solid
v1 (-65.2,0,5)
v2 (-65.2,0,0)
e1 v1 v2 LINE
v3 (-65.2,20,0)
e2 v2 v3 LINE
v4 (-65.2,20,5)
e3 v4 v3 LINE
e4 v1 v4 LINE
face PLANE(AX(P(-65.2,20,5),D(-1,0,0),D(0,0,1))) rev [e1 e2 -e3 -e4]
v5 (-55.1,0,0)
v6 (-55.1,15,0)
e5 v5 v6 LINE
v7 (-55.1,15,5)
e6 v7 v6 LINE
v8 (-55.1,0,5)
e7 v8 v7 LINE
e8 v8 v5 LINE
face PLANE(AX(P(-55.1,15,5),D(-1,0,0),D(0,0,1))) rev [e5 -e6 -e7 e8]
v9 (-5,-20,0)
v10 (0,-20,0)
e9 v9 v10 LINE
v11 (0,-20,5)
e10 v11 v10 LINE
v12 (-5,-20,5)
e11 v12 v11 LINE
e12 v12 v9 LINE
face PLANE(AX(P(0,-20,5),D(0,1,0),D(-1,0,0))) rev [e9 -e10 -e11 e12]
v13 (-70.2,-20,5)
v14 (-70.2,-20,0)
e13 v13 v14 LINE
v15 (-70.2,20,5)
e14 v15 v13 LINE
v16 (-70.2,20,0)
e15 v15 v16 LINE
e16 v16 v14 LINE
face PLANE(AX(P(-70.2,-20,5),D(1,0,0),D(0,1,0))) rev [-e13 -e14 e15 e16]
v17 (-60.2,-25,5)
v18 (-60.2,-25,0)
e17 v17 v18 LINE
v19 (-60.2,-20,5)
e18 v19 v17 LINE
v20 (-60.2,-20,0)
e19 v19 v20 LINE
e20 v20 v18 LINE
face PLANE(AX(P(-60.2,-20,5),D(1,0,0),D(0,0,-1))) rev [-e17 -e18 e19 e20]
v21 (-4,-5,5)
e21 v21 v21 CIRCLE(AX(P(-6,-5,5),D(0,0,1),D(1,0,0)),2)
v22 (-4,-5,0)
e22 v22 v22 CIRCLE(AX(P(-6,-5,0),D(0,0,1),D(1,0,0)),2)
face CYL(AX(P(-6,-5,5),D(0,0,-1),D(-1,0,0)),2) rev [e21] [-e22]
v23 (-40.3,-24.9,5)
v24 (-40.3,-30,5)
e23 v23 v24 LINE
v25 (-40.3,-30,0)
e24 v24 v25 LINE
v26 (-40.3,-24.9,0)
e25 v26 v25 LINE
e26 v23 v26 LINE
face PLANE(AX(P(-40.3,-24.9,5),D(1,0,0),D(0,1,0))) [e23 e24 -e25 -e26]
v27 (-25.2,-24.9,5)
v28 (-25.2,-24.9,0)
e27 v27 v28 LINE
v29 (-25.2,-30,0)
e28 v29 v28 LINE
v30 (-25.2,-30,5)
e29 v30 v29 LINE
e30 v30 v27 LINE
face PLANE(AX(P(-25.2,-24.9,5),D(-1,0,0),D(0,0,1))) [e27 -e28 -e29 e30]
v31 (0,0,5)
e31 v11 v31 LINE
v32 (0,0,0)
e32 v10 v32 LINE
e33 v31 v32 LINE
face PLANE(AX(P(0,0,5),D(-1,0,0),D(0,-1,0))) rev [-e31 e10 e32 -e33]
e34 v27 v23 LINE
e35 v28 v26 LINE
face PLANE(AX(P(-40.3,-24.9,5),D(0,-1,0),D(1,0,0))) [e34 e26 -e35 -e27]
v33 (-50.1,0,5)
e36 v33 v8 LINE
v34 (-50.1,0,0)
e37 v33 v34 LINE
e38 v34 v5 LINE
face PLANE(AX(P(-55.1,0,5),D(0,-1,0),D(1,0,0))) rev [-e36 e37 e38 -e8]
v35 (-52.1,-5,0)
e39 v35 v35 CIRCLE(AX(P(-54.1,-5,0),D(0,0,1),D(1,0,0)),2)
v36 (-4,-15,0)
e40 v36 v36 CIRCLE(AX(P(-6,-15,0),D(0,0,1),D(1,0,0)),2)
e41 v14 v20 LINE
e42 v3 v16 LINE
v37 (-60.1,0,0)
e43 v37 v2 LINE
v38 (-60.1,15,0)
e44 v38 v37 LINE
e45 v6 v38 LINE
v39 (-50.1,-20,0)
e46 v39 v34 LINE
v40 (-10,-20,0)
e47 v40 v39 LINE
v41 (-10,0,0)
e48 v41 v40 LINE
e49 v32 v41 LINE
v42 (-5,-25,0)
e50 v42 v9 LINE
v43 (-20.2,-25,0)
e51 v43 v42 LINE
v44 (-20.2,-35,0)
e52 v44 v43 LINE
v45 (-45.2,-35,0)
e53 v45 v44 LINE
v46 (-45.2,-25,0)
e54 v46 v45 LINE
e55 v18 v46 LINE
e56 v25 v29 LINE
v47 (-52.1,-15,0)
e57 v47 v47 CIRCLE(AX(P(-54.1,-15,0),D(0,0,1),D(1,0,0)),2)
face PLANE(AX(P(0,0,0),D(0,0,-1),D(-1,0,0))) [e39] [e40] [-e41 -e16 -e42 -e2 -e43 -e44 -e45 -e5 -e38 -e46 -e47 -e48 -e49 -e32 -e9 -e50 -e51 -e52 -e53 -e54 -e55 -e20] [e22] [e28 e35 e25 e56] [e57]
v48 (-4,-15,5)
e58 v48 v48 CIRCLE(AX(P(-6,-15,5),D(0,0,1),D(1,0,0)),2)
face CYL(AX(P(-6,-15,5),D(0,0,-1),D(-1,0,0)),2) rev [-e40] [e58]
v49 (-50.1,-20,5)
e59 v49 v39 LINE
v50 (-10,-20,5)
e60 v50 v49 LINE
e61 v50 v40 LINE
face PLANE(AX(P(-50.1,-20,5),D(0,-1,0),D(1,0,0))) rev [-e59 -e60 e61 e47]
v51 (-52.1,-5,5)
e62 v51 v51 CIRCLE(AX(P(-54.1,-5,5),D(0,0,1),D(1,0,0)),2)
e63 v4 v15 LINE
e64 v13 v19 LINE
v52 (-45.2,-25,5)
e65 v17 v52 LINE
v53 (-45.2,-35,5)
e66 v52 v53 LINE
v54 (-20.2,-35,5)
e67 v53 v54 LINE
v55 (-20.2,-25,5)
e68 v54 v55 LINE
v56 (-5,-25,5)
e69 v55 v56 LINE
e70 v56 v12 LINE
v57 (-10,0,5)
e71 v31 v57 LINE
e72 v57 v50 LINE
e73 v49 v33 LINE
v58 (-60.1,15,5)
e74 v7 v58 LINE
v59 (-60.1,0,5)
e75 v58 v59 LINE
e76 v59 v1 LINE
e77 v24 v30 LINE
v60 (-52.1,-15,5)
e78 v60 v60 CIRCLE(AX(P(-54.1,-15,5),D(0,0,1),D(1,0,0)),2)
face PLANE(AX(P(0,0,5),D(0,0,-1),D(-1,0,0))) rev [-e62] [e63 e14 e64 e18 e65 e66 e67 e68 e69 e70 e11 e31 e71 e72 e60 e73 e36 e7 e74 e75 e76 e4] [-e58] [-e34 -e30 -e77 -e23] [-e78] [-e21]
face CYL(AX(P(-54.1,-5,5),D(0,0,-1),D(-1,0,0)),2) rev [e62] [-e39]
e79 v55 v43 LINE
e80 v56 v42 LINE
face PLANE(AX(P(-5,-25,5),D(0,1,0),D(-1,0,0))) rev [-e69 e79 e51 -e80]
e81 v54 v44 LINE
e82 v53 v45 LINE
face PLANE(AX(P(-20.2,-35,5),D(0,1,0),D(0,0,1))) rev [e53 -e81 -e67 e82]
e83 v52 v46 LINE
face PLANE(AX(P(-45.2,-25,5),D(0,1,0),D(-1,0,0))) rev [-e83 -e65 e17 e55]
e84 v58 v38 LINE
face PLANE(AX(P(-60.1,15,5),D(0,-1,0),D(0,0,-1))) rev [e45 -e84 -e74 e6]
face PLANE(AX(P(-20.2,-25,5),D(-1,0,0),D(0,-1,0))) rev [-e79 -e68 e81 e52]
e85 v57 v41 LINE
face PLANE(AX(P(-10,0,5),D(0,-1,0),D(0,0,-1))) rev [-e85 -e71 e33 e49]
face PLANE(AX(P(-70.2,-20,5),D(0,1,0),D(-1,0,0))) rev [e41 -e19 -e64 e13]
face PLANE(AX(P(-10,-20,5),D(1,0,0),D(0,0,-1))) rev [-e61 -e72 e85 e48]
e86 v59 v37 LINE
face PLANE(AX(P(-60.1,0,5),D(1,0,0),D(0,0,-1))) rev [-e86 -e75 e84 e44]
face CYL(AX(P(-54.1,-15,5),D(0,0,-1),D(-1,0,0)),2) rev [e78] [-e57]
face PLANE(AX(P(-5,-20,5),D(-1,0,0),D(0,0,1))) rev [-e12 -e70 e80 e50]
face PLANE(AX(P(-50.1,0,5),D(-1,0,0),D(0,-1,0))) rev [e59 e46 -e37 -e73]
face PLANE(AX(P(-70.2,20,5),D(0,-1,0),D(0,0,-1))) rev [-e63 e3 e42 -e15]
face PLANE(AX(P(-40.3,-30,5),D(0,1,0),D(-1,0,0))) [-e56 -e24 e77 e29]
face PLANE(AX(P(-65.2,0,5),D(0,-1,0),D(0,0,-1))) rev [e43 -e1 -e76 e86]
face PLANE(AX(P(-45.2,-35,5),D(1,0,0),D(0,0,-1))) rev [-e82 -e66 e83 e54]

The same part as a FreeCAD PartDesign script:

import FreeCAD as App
import Part
import Sketcher

V = App.Vector

doc = App.newDocument("Part")
params = doc.addObject("Spreadsheet::Sheet", "Params")
for row, (alias, value) in enumerate([
    ("sketch1_diameter", "4 mm"),
    ("sketch1_width", "5 mm"),
    ("sketch1_width2", "10 mm"),
    ("sketch1_width3", "15 mm"),
    ("sketch1_width4", "25 mm"),
    ("pad1_length", "5 mm"),
], start=1):
    params.set(f"A{row}", alias)
    params.set(f"B{row}", "=" + value)
    params.setAlias(f"B{row}", alias)

body = doc.addObject("PartDesign::Body", "Body")

# Sketch on XY plane
sketch1 = doc.addObject("Sketcher::SketchObject", "Sketch")
body.addObject(sketch1)
sketch1.AttachmentSupport = (doc.XY_Plane, [""])
sketch1.MapMode = "FlatFace"
sketch1.addGeometry([
    Part.LineSegment(V(-65.2, 20, 0), V(-70.2, 20, 0)),  # 0
    Part.LineSegment(V(-70.2, 20, 0), V(-70.2, -20, 0)),  # 1
    Part.LineSegment(V(-70.2, -20, 0), V(-60.2, -20, 0)),  # 2
    Part.LineSegment(V(-60.2, -20, 0), V(-60.2, -25, 0)),  # 3
    Part.LineSegment(V(-60.2, -25, 0), V(-45.2, -25, 0)),  # 4
    Part.LineSegment(V(-45.2, -25, 0), V(-45.2, -35, 0)),  # 5
    Part.LineSegment(V(-45.2, -35, 0), V(-20.2, -35, 0)),  # 6
    Part.LineSegment(V(-20.2, -35, 0), V(-20.2, -25, 0)),  # 7
    Part.LineSegment(V(-20.2, -25, 0), V(-5, -25, 0)),  # 8
    Part.LineSegment(V(-5, -25, 0), V(-5, -20, 0)),  # 9
    Part.LineSegment(V(-5, -20, 0), V(0, -20, 0)),  # 10
    Part.LineSegment(V(0, -20, 0), V(0, 0, 0)),  # 11
    Part.LineSegment(V(0, 0, 0), V(-10, 0, 0)),  # 12
    Part.LineSegment(V(-10, 0, 0), V(-10, -20, 0)),  # 13
    Part.LineSegment(V(-10, -20, 0), V(-50.1, -20, 0)),  # 14
    Part.LineSegment(V(-50.1, -20, 0), V(-50.1, 0, 0)),  # 15
    Part.LineSegment(V(-50.1, 0, 0), V(-55.1, 0, 0)),  # 16
    Part.LineSegment(V(-55.1, 0, 0), V(-55.1, 15, 0)),  # 17
    Part.LineSegment(V(-55.1, 15, 0), V(-60.1, 15, 0)),  # 18
    Part.LineSegment(V(-60.1, 15, 0), V(-60.1, 0, 0)),  # 19
    Part.LineSegment(V(-60.1, 0, 0), V(-65.2, 0, 0)),  # 20
    Part.LineSegment(V(-65.2, 0, 0), V(-65.2, 20, 0)),  # 21
    Part.LineSegment(V(-40.3, -30, 0), V(-40.3, -24.9, 0)),  # 22
    Part.LineSegment(V(-40.3, -24.9, 0), V(-25.2, -24.9, 0)),  # 23
    Part.LineSegment(V(-25.2, -24.9, 0), V(-25.2, -30, 0)),  # 24
    Part.LineSegment(V(-25.2, -30, 0), V(-40.3, -30, 0)),  # 25
    Part.Circle(V(-6, -15, 0), V(0, 0, 1), 2),  # 26
    Part.Circle(V(-6, -5, 0), V(0, 0, 1), 2),  # 27
    Part.Circle(V(-54.1, -15, 0), V(0, 0, 1), 2),  # 28
    Part.Circle(V(-54.1, -5, 0), V(0, 0, 1), 2),  # 29
], False)
sketch1.addConstraint([
    Sketcher.Constraint("Coincident", 0, 2, 1, 1),
    Sketcher.Constraint("Coincident", 1, 2, 2, 1),
    Sketcher.Constraint("Coincident", 2, 2, 3, 1),
    Sketcher.Constraint("Coincident", 3, 2, 4, 1),
    Sketcher.Constraint("Coincident", 4, 2, 5, 1),
    Sketcher.Constraint("Coincident", 5, 2, 6, 1),
    Sketcher.Constraint("Coincident", 6, 2, 7, 1),
    Sketcher.Constraint("Coincident", 7, 2, 8, 1),
    Sketcher.Constraint("Coincident", 8, 2, 9, 1),
    Sketcher.Constraint("Coincident", 9, 2, 10, 1),
    Sketcher.Constraint("Coincident", 10, 2, 11, 1),
    Sketcher.Constraint("Coincident", 11, 2, 12, 1),
    Sketcher.Constraint("Coincident", 12, 2, 13, 1),
    Sketcher.Constraint("Coincident", 13, 2, 14, 1),
    Sketcher.Constraint("Coincident", 14, 2, 15, 1),
    Sketcher.Constraint("Coincident", 15, 2, 16, 1),
    Sketcher.Constraint("Coincident", 16, 2, 17, 1),
    Sketcher.Constraint("Coincident", 17, 2, 18, 1),
    Sketcher.Constraint("Coincident", 18, 2, 19, 1),
    Sketcher.Constraint("Coincident", 19, 2, 20, 1),
    Sketcher.Constraint("Coincident", 20, 2, 21, 1),
    Sketcher.Constraint("Coincident", 21, 2, 0, 1),
    Sketcher.Constraint("Coincident", 22, 2, 23, 1),
    Sketcher.Constraint("Coincident", 23, 2, 24, 1),
    Sketcher.Constraint("Coincident", 24, 2, 25, 1),
    Sketcher.Constraint("Coincident", 25, 2, 22, 1),
    Sketcher.Constraint("Horizontal", 0),
    Sketcher.Constraint("Vertical", 1),
    Sketcher.Constraint("Horizontal", 2),
    Sketcher.Constraint("Vertical", 3),
    Sketcher.Constraint("Horizontal", 4),
    Sketcher.Constraint("Vertical", 5),
    Sketcher.Constraint("Horizontal", 6),
    Sketcher.Constraint("Vertical", 7),
    Sketcher.Constraint("Horizontal", 8),
    Sketcher.Constraint("Vertical", 9),
    Sketcher.Constraint("Horizontal", 10),
    Sketcher.Constraint("Vertical", 11),
    Sketcher.Constraint("Horizontal", 12),
    Sketcher.Constraint("Vertical", 13),
    Sketcher.Constraint("Horizontal", 14),
    Sketcher.Constraint("Vertical", 15),
    Sketcher.Constraint("Horizontal", 16),
    Sketcher.Constraint("Vertical", 17),
    Sketcher.Constraint("Horizontal", 18),
    Sketcher.Constraint("Vertical", 19),
    Sketcher.Constraint("Horizontal", 20),
    Sketcher.Constraint("Vertical", 21),
    Sketcher.Constraint("Vertical", 22),
    Sketcher.Constraint("Horizontal", 23),
    Sketcher.Constraint("Vertical", 24),
    Sketcher.Constraint("Horizontal", 25),
    Sketcher.Constraint("Coincident", 11, 2, -1, 1),
    Sketcher.Constraint("Equal", 26, 27),
    Sketcher.Constraint("Equal", 27, 28),
    Sketcher.Constraint("Equal", 28, 29),
    Sketcher.Constraint("PointOnObject", 15, 2, -1),
    Sketcher.Constraint("PointOnObject", 19, 2, -1),
    Sketcher.Constraint("Horizontal", 26, 3, 28, 3),
    Sketcher.Constraint("Horizontal", 27, 3, 29, 3),
    Sketcher.Constraint("Horizontal", 4, 2, 7, 2),
    Sketcher.Constraint("Horizontal", 2, 2, 9, 2),
    Sketcher.Constraint("Horizontal", 10, 2, 13, 2),
    Sketcher.Constraint("Vertical", 26, 3, 27, 3),
    Sketcher.Constraint("Vertical", 28, 3, 29, 3),
    Sketcher.Constraint("Equal", 0, 10),
    Sketcher.Constraint("Equal", 2, 12),
    Sketcher.Constraint("Equal", 10, 16),
    Sketcher.Constraint("Equal", 16, 18),
    Sketcher.Constraint("Equal", 18, 3),
    Sketcher.Constraint("Equal", 12, 5),
    Sketcher.Constraint("Equal", 4, 17),
    Sketcher.Constraint("Equal", 15, 21),
    Sketcher.Constraint("Equal", 20, 22),
    Sketcher.Constraint("Diameter", 26, 4.0),
    Sketcher.Constraint("DistanceX", 0, 2, 0, 1, 5.0),
    Sketcher.Constraint("DistanceX", 2, 1, 2, 2, 10.0),
    Sketcher.Constraint("DistanceX", 4, 1, 4, 2, 15.0),
    Sketcher.Constraint("DistanceX", 6, 1, 6, 2, 25.0),
    Sketcher.Constraint("DistanceY", 1, 2, 1, 1, 40.0),
    Sketcher.Constraint("DistanceX", 8, 1, 8, 2, 15.2),
    Sketcher.Constraint("DistanceX", 14, 2, 14, 1, 40.1),
    Sketcher.Constraint("DistanceX", 23, 1, 23, 2, 15.1),
    Sketcher.Constraint("DistanceX", 26, 3, -1, 1, 6.0),
    Sketcher.Constraint("DistanceY", 26, 3, -1, 1, 15.0),
    Sketcher.Constraint("DistanceY", 27, 3, -1, 1, 5.0),
    Sketcher.Constraint("DistanceY", 24, 2, -1, 1, 30.0),
    Sketcher.Constraint("DistanceX", 28, 3, 14, 2, 4.0),
    Sketcher.Constraint("DistanceX", 23, 2, 7, 2, 5.0),
])
sketch1.setExpression("Constraints[74]", "Params.sketch1_diameter")
sketch1.setExpression("Constraints[75]", "Params.sketch1_width")
sketch1.setExpression("Constraints[76]", "Params.sketch1_width2")
sketch1.setExpression("Constraints[77]", "Params.sketch1_width3")
sketch1.setExpression("Constraints[78]", "Params.sketch1_width4")
pad1 = doc.addObject("PartDesign::Pad", "Pad")
body.addObject(pad1)
pad1.Profile = sketch1
pad1.setExpression("Length", "Params.pad1_length")

doc.recompute()
